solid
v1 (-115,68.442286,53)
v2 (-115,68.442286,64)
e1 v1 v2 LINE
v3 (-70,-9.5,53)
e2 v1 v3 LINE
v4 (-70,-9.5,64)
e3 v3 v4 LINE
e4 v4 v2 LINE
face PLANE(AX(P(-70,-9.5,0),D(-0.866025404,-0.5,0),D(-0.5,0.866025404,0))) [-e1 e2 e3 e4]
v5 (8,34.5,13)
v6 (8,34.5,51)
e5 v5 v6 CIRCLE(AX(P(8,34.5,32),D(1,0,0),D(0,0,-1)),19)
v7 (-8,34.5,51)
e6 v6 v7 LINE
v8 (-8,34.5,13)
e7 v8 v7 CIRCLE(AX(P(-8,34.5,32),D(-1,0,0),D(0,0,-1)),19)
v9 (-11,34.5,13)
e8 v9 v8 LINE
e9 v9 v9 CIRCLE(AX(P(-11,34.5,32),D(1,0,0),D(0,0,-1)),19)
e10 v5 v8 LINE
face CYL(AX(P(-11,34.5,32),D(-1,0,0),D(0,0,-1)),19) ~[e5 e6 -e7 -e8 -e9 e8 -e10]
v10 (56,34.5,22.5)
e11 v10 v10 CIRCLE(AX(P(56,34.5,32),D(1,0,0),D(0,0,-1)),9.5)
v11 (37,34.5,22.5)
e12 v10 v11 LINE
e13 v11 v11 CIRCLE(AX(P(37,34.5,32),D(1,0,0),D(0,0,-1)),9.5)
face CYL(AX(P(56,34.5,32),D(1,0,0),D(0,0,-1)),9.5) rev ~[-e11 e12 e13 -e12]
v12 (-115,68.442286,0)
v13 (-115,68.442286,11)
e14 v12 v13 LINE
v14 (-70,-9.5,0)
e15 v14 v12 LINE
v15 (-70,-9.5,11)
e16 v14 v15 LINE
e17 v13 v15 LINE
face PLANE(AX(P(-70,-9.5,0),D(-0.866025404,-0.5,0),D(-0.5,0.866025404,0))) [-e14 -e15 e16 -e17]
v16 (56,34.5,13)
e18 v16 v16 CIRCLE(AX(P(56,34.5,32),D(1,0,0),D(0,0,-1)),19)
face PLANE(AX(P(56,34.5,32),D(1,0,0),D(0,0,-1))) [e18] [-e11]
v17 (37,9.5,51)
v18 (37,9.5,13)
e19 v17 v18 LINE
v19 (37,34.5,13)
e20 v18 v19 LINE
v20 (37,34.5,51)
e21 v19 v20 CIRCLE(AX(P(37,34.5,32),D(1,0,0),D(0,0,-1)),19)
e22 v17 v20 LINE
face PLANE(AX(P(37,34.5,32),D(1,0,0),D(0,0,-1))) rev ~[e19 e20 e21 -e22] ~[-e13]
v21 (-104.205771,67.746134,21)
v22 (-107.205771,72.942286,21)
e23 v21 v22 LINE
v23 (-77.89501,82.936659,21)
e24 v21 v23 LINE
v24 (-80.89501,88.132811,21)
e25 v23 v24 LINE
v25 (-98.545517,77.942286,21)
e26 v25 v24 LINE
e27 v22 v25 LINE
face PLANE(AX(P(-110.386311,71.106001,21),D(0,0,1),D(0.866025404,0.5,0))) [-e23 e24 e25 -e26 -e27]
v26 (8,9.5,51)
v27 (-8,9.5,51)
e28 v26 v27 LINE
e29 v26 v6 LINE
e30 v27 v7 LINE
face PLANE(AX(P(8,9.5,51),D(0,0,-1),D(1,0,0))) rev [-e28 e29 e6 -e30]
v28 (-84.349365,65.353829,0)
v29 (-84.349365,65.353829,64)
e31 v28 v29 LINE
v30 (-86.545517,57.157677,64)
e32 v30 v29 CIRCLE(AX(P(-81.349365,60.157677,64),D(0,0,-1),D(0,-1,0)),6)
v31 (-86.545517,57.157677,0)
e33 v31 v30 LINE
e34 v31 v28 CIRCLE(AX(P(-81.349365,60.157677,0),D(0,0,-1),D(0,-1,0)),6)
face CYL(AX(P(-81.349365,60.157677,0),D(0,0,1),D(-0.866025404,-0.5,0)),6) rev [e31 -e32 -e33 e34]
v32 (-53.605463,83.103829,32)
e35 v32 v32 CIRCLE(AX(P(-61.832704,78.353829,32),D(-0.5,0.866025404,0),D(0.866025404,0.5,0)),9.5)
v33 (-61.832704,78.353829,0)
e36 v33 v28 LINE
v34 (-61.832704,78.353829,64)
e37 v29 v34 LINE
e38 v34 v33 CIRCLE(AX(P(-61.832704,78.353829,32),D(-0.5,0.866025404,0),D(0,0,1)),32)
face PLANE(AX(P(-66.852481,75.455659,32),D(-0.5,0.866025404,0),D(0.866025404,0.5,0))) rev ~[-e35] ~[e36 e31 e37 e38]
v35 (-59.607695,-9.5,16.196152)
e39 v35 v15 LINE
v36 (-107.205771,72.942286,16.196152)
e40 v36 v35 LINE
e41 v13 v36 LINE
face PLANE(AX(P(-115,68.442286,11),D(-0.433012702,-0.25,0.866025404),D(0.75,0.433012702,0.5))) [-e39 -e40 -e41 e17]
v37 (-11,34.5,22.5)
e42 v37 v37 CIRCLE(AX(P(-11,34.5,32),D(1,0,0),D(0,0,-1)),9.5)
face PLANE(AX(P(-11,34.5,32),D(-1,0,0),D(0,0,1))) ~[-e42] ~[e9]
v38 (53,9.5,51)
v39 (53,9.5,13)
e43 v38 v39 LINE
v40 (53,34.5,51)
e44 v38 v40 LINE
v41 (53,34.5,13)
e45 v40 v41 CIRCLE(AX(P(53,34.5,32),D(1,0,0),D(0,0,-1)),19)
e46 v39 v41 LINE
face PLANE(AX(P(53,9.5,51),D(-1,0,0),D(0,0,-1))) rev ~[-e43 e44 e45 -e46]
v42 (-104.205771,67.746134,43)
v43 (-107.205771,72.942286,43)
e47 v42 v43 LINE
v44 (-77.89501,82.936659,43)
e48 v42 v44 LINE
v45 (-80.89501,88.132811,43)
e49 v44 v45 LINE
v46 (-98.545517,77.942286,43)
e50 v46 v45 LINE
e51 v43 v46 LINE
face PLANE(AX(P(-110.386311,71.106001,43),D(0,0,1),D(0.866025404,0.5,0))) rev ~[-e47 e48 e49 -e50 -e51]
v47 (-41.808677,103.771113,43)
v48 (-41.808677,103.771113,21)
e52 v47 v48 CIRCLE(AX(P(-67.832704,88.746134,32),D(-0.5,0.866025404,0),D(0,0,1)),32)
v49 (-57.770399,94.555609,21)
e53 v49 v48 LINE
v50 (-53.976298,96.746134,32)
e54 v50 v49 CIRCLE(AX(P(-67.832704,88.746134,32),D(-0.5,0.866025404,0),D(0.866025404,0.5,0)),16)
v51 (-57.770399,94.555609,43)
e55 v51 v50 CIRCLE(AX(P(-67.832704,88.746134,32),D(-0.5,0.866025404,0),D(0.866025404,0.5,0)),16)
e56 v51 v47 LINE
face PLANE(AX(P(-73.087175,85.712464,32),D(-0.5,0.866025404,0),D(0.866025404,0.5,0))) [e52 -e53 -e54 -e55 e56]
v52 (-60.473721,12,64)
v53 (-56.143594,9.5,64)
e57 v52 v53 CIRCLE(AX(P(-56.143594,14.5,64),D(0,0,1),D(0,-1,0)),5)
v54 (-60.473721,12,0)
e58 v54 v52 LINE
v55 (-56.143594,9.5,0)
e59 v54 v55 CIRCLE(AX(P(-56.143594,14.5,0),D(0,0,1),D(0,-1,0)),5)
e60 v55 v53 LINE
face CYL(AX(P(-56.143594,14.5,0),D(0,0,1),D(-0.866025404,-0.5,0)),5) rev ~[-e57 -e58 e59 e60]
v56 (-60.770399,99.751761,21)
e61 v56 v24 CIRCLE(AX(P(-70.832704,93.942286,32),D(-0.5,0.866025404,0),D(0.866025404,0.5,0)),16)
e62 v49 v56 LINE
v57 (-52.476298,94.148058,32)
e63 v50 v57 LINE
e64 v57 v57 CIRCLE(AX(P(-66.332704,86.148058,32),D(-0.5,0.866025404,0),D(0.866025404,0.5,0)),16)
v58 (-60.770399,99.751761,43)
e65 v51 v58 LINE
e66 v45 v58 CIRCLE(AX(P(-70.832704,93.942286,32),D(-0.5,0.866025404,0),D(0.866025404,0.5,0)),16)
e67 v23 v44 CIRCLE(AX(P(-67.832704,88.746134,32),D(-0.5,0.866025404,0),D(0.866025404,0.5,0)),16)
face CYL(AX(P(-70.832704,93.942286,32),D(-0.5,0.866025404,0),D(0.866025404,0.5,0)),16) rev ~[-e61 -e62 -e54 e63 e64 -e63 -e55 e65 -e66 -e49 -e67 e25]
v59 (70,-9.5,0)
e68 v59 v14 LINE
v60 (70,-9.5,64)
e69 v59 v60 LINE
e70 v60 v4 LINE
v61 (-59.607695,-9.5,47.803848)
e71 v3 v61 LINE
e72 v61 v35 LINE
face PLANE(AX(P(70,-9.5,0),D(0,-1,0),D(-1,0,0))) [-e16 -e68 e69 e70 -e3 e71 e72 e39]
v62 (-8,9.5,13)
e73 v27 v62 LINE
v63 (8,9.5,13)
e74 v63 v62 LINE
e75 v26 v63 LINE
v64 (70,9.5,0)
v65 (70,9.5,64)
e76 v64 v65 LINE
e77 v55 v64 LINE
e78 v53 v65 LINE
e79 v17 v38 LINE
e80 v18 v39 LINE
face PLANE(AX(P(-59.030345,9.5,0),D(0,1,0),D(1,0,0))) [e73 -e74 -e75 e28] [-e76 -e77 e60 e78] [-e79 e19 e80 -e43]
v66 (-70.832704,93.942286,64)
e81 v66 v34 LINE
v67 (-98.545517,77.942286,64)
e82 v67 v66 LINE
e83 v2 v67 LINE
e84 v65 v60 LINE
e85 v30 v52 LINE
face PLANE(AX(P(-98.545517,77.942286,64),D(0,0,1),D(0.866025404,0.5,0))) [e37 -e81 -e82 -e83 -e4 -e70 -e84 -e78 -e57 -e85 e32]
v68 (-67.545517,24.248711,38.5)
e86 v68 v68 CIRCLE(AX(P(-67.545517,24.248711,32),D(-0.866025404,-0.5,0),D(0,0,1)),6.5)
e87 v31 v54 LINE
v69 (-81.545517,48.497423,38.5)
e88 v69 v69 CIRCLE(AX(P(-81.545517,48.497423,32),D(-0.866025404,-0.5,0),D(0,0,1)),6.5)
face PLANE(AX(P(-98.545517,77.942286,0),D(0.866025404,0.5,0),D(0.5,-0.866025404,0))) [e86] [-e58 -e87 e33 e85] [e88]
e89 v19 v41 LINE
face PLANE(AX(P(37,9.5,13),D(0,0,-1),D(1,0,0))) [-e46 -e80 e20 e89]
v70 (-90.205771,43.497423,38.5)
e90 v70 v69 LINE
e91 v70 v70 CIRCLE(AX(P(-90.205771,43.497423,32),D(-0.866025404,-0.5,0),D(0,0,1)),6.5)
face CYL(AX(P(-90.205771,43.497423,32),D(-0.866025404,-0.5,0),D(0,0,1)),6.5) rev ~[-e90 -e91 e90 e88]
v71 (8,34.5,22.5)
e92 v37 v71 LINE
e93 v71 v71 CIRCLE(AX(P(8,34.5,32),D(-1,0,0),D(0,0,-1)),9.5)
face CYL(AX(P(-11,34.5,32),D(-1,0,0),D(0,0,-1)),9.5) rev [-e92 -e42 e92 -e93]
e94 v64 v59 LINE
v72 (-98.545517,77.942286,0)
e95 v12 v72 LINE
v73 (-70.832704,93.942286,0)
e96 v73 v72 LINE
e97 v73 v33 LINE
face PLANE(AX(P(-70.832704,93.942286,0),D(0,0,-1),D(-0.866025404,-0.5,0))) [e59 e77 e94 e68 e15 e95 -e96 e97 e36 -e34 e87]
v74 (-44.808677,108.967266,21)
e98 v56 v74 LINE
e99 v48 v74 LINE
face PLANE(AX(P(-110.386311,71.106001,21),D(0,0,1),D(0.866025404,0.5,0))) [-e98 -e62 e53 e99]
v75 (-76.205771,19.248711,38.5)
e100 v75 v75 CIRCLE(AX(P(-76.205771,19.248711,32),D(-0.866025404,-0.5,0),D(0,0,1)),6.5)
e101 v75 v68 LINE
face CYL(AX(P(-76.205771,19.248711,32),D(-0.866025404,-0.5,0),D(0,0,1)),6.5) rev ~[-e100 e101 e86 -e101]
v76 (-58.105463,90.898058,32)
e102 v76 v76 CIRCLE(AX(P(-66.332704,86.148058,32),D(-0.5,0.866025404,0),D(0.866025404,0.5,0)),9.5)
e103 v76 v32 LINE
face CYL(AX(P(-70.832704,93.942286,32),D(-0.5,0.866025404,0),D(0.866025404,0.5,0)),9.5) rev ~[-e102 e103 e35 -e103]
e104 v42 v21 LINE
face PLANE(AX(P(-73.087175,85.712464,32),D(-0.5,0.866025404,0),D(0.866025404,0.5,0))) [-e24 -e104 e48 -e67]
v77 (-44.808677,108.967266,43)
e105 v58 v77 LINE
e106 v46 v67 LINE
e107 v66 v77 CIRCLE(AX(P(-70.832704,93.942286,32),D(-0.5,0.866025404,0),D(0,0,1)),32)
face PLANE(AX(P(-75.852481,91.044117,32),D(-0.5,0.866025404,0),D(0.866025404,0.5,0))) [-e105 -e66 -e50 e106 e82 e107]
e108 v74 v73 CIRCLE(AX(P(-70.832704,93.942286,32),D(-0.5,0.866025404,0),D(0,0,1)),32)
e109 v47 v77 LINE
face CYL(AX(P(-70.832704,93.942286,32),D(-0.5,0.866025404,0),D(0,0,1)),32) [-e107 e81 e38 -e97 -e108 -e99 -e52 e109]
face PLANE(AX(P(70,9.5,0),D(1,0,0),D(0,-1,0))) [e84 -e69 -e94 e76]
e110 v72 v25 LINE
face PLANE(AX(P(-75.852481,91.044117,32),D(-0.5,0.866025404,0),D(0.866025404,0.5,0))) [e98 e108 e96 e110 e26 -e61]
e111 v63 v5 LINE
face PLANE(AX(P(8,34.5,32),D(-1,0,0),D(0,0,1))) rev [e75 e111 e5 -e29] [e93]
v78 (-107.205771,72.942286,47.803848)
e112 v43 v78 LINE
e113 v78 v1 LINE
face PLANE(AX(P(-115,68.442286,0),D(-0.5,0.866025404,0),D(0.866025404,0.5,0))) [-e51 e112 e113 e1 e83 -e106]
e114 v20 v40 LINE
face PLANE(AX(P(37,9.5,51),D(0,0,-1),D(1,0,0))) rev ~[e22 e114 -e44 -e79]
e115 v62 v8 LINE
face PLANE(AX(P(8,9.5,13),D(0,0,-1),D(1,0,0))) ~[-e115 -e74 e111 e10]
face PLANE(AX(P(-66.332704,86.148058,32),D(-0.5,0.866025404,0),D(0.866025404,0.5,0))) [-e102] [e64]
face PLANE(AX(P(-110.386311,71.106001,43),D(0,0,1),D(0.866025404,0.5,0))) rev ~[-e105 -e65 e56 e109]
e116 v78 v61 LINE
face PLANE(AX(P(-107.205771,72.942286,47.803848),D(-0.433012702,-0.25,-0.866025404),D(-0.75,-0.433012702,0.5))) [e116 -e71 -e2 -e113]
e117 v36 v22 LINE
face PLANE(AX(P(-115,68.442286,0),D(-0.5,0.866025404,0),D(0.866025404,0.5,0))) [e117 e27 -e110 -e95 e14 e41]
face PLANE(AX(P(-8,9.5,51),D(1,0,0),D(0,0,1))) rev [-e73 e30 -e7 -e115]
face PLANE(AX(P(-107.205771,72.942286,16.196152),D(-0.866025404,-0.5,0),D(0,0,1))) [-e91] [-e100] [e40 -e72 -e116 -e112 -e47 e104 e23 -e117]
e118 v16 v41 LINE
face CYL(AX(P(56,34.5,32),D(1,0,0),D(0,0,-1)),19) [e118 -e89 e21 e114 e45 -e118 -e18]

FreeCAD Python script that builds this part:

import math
import FreeCAD as App
import Part
import Sketcher
Q = App.Units.Quantity


def edges_at(feature, points):
    """Names of the edges that pass closest to the given points."""
    edges = feature.Shape.Edges
    near = lambda p: min(range(len(edges)), key=lambda i: edges[i].distToShape(Part.Vertex(*p))[0])
    return sorted({f"Edge{near(p) + 1}" for p in points})


def add_polygon(sketch, points):
    """Adds a closed chain of lines whose ends are joined by coincident constraints."""
    first, n = sketch.GeometryCount, len(points)
    for a, b in zip(points, points[1:] + points[:1]):
        sketch.addGeometry(Part.LineSegment(App.Vector(*a, 0), App.Vector(*b, 0)), False)
    for i in range(n):
        sketch.addConstraint(Sketcher.Constraint("Coincident", first + i, 2, first + (i + 1) % n, 1))

doc = App.newDocument("Part")
body = doc.addObject("PartDesign::Body", "Body")

sketch1 = doc.addObject("Sketcher::SketchObject", "Sketch")
body.addObject(sketch1)
sketch1.AttachmentSupport = (doc.XY_Plane, [""])
sketch1.MapMode = "FlatFace"
add_polygon(sketch1, [(-115, 68), (-70, -10), (70, -10), (70, 10), (-59, 10), (-99, 78)])
sketch1.addConstraint([
    Sketcher.Constraint("Horizontal", 1),
    Sketcher.Constraint("Vertical", 2),
    Sketcher.Constraint("Horizontal", 3),
    Sketcher.Constraint("Symmetric", 0, 2, 2, 2, -1, 1),
    Sketcher.Constraint("Parallel", 0, 4),
    Sketcher.Constraint("Perpendicular", 4, 5),
    Sketcher.Constraint("DistanceX", 1, 1, 1, 2, Q("140 mm")),
    Sketcher.Constraint("DistanceY", 2, 1, 2, 2, Q("19 mm")),
    Sketcher.Constraint("Angle", 0, Q("-60 deg")),
    Sketcher.Constraint("Distance", 0, Q("90 mm")),
    Sketcher.Constraint("Distance", 5, Q("19 mm")),
])
pad1 = doc.addObject("PartDesign::Pad", "Pad")
body.addObject(pad1)
pad1.Profile = sketch1
pad1.Length = 64

sketch2 = doc.addObject("Sketcher::SketchObject", "Sketch001")
body.addObject(sketch2)
sketch2.Placement = App.Placement(App.Vector(-58.386379, 101.128175, 0), App.Rotation(App.Vector(0.866025404, 0.5, 0), App.Vector(0, 0, -1), App.Vector(-0.5, 0.866025404, 0), "ZXY"))
sketch2.addGeometry([
    Part.LineSegment(App.Vector(-46, 0, 0), App.Vector(-46, -64, 0)),
    Part.LineSegment(App.Vector(-46, -64, 0), App.Vector(-14, -64, 0)),
    Part.ArcOfCircle(Part.Circle(App.Vector(-14, -32, 0), App.Vector(0, 0, 1), 32), math.radians(-90), math.radians(90)),
    Part.LineSegment(App.Vector(-14, 0, 0), App.Vector(-46, 0, 0)),
    Part.Circle(App.Vector(-14, -32, 0), App.Vector(0, 0, 1), 10),
], False)
sketch2.addConstraint([
    Sketcher.Constraint("Coincident", 0, 2, 1, 1),
    Sketcher.Constraint("Tangent", 1, 2, 2, 1),
    Sketcher.Constraint("Tangent", 2, 2, 3, 1),
    Sketcher.Constraint("Coincident", 3, 2, 0, 1),
    Sketcher.Constraint("Vertical", 0),
    Sketcher.Constraint("Horizontal", 1),
    Sketcher.Constraint("Horizontal", 3),
    Sketcher.Constraint("Coincident", 4, 3, 2, 3),
    Sketcher.Constraint("PointOnObject", 2, 2, -1),
    Sketcher.Constraint("Diameter", 4, Q("19 mm")),
    Sketcher.Constraint("Radius", 2, Q("32 mm")),
    Sketcher.Constraint("DistanceX", 1, 1, 1, 2, Q("32 mm")),
    Sketcher.Constraint("DistanceX", 2, 3, -1, 1, Q("14.371778 mm")),
])
pad2 = doc.addObject("PartDesign::Pad", "Pad001")
body.addObject(pad2)
pad2.Profile = sketch2
pad2.Length = 18
pad2.Reversed = True

sketch3 = doc.addObject("Sketcher::SketchObject", "Sketch002")
body.addObject(sketch3)
sketch3.Placement = App.Placement(App.Vector(-58.386379, 101.128175, 0), App.Rotation(App.Vector(0.866025404, 0.5, 0), App.Vector(0, 0, -1), App.Vector(-0.5, 0.866025404, 0), "ZXY"))
add_polygon(sketch3, [(-56, -48), (-56, -16), (-65, -11), (-65, -53)])
sketch3.addConstraint([
    Sketcher.Constraint("Vertical", 0),
    Sketcher.Constraint("Vertical", 2),
    Sketcher.Constraint("Equal", 1, 3),
    Sketcher.Constraint("DistanceY", 2, 2, 2, 1, Q("42 mm")),
    Sketcher.Constraint("Angle", 1, Q("150 deg")),
    Sketcher.Constraint("DistanceY", 1, 2, -1, 1, Q("11 mm")),
    Sketcher.Constraint("DistanceX", 1, 2, 0, 2, Q("9 mm")),
    Sketcher.Constraint("DistanceX", 0, 2, -1, 1, Q("56.371778 mm")),
])
pocket1 = doc.addObject("PartDesign::Pocket", "Pocket")
body.addObject(pocket1)
pocket1.Profile = sketch3
pocket1.Length = 128

sketch4 = doc.addObject("Sketcher::SketchObject", "Sketch003")
body.addObject(sketch4)
sketch4.Placement = App.Placement(App.Vector(-58.386379, 101.128175, 0), App.Rotation(App.Vector(0.866025404, 0.5, 0), App.Vector(0, 0, -1), App.Vector(-0.5, 0.866025404, 0), "ZXY"))
add_polygon(sketch4, [(-60, -21), (-60, -43), (19, -43), (19, -21)])
sketch4.addConstraint([
    Sketcher.Constraint("Vertical", 0),
    Sketcher.Constraint("Horizontal", 1),
    Sketcher.Constraint("Vertical", 2),
    Sketcher.Constraint("Horizontal", 3),
    Sketcher.Constraint("DistanceY", 0, 2, 0, 1, Q("22 mm")),
    Sketcher.Constraint("DistanceY", 0, 2, -1, 1, Q("43 mm")),
    Sketcher.Constraint("DistanceX", 1, 1, 1, 2, Q("79.210461 mm")),
    Sketcher.Constraint("DistanceX", 0, 2, -1, 1, Q("60.044349 mm")),
])
pocket2 = doc.addObject("PartDesign::Pocket", "Pocket001")
body.addObject(pocket2)
pocket2.Profile = sketch4
pocket2.Length = 6

sketch5 = doc.addObject("Sketcher::SketchObject", "Sketch004")
body.addObject(sketch5)
sketch5.Placement = App.Placement(App.Vector(-58.386379, 101.128175, 0), App.Rotation(App.Vector(0.866025404, 0.5, 0), App.Vector(0, 0, -1), App.Vector(-0.5, 0.866025404, 0), "ZXY"))
sketch5.addGeometry(Part.Circle(App.Vector(-14, -32, 0), App.Vector(0, 0, 1), 16), False)
sketch5.addConstraint([
    Sketcher.Constraint("Diameter", 0, Q("32 mm")),
    Sketcher.Constraint("DistanceY", 0, 3, -1, 1, Q("32 mm")),
    Sketcher.Constraint("DistanceX", 0, 3, -1, 1, Q("14.371778 mm")),
])
pocket3 = doc.addObject("PartDesign::Pocket", "Pocket002")
body.addObject(pocket3)
pocket3.Profile = sketch5
pocket3.Length = 9

sketch6 = doc.addObject("Sketcher::SketchObject", "Sketch005")
body.addObject(sketch6)
sketch6.Placement = App.Placement(App.Vector(-48.819392, -28.185889, 0), App.Rotation(App.Vector(0, 0, 1), App.Vector(-0.5, 0.866025404, 0), App.Vector(-0.866025404, -0.5, 0), "ZXY"))
sketch6.addGeometry([
    Part.Circle(App.Vector(32, 83, 0), App.Vector(0, 0, 1), 6),
    Part.Circle(App.Vector(32, 55, 0), App.Vector(0, 0, 1), 6),
], False)
sketch6.addConstraint([
    Sketcher.Constraint("Equal", 0, 1),
    Sketcher.Constraint("Vertical", 0, 3, 1, 3),
    Sketcher.Constraint("Diameter", 0, Q("13 mm")),
    Sketcher.Constraint("DistanceX", -1, 1, 0, 3, Q("32 mm")),
    Sketcher.Constraint("DistanceY", 1, 3, 0, 3, Q("28 mm")),
    Sketcher.Constraint("DistanceY", -1, 1, 0, 3, Q("82.772759 mm")),
])
pocket4 = doc.addObject("PartDesign::Pocket", "Pocket003")
body.addObject(pocket4)
pocket4.Profile = sketch6
pocket4.Length = 10
doc.recompute()

fillet = doc.addObject("PartDesign::Fillet", "Fillet")
body.addObject(fillet)
fillet.Base = (pocket4, edges_at(pocket4, [(-59.03, 9.5, 32)]))
fillet.Radius = 5
doc.recompute()

fillet2 = doc.addObject("PartDesign::Fillet", "Fillet001")
body.addObject(fillet2)
fillet2.Base = (fillet, edges_at(fillet, [(-89.546, 62.354, 32)]))
fillet2.Radius = 6

sketch7 = doc.addObject("Sketcher::SketchObject", "Sketch006")
body.addObject(sketch7)
sketch7.AttachmentSupport = (doc.XZ_Plane, [""])
sketch7.MapMode = "FlatFace"
sketch7.AttachmentOffset = App.Placement(App.Vector(0, 0, -9.5), App.Rotation())
add_polygon(sketch7, [(37, 13), (37, 51), (53, 51), (53, 13)])
sketch7.addConstraint([
    Sketcher.Constraint("Vertical", 0),
    Sketcher.Constraint("Horizontal", 1),
    Sketcher.Constraint("Vertical", 2),
    Sketcher.Constraint("Horizontal", 3),
    Sketcher.Constraint("DistanceX", 1, 1, 1, 2, Q("16 mm")),
    Sketcher.Constraint("DistanceY", 0, 1, 0, 2, Q("38 mm")),
    Sketcher.Constraint("DistanceX", -1, 1, 0, 2, Q("37 mm")),
    Sketcher.Constraint("DistanceY", -1, 1, 0, 2, Q("51 mm")),
])
pad3 = doc.addObject("PartDesign::Pad", "Pad002")
body.addObject(pad3)
pad3.Profile = sketch7
pad3.Length = 25
pad3.Reversed = True

sketch8 = doc.addObject("Sketcher::SketchObject", "Sketch007")
body.addObject(sketch8)
sketch8.AttachmentSupport = (doc.YZ_Plane, [""])
sketch8.MapMode = "FlatFace"
sketch8.AttachmentOffset = App.Placement(App.Vector(0, 0, 56), App.Rotation())
sketch8.addGeometry([
    Part.Circle(App.Vector(34, 32, 0), App.Vector(0, 0, 1), 19),
    Part.Circle(App.Vector(34, 32, 0), App.Vector(0, 0, 1), 10),
], False)
sketch8.addConstraint([
    Sketcher.Constraint("Coincident", 1, 3, 0, 3),
    Sketcher.Constraint("Diameter", 0, Q("38 mm")),
    Sketcher.Constraint("Diameter", 1, Q("19 mm")),
    Sketcher.Constraint("DistanceY", -1, 1, 0, 3, Q("32 mm")),
    Sketcher.Constraint("DistanceX", -1, 1, 0, 3, Q("34.5 mm")),
])
pad4 = doc.addObject("PartDesign::Pad", "Pad003")
body.addObject(pad4)
pad4.Profile = sketch8
pad4.Length = 19
pad4.Reversed = True

sketch9 = doc.addObject("Sketcher::SketchObject", "Sketch008")
body.addObject(sketch9)
sketch9.AttachmentSupport = (doc.YZ_Plane, [""])
sketch9.MapMode = "FlatFace"
sketch9.AttachmentOffset = App.Placement(App.Vector(0, 0, 56), App.Rotation())
sketch9.addGeometry(Part.Circle(App.Vector(34, 32, 0), App.Vector(0, 0, 1), 10), False)
sketch9.addConstraint([
    Sketcher.Constraint("Diameter", 0, Q("19 mm")),
    Sketcher.Constraint("DistanceY", -1, 1, 0, 3, Q("32 mm")),
    Sketcher.Constraint("DistanceX", -1, 1, 0, 3, Q("34.5 mm")),
])
pocket5 = doc.addObject("PartDesign::Pocket", "Pocket004")
body.addObject(pocket5)
pocket5.Profile = sketch9
pocket5.Length = 19
doc.recompute()

datumplane = doc.addObject("PartDesign::Plane", "DatumPlane")
body.addObject(datumplane)
datumplane.AttachmentSupport = (doc.YZ_Plane, [""])
datumplane.MapMode = "FlatFace"
datumplane.AttachmentOffset = App.Placement(App.Vector(0, 0, 22.5), App.Rotation())
mirrored = doc.addObject("PartDesign::Mirrored", "Mirrored")
body.addObject(mirrored)
mirrored.Originals = [pad3, pad4]
mirrored.MirrorPlane = (datumplane, [""])
body.Tip = mirrored

sketch10 = doc.addObject("Sketcher::SketchObject", "Sketch009")
body.addObject(sketch10)
sketch10.AttachmentSupport = (doc.YZ_Plane, [""])
sketch10.MapMode = "FlatFace"
sketch10.AttachmentOffset = App.Placement(App.Vector(0, 0, -11), App.Rotation())
sketch10.addGeometry(Part.Circle(App.Vector(34, 32, 0), App.Vector(0, 0, 1), 10), False)
sketch10.addConstraint([
    Sketcher.Constraint("Diameter", 0, Q("19 mm")),
    Sketcher.Constraint("DistanceY", -1, 1, 0, 3, Q("32 mm")),
    Sketcher.Constraint("DistanceX", -1, 1, 0, 3, Q("34.5 mm")),
])
pocket6 = doc.addObject("PartDesign::Pocket", "Pocket005")
body.addObject(pocket6)
pocket6.Profile = sketch10
pocket6.Length = 19
pocket6.Reversed = True

doc.recompute()
